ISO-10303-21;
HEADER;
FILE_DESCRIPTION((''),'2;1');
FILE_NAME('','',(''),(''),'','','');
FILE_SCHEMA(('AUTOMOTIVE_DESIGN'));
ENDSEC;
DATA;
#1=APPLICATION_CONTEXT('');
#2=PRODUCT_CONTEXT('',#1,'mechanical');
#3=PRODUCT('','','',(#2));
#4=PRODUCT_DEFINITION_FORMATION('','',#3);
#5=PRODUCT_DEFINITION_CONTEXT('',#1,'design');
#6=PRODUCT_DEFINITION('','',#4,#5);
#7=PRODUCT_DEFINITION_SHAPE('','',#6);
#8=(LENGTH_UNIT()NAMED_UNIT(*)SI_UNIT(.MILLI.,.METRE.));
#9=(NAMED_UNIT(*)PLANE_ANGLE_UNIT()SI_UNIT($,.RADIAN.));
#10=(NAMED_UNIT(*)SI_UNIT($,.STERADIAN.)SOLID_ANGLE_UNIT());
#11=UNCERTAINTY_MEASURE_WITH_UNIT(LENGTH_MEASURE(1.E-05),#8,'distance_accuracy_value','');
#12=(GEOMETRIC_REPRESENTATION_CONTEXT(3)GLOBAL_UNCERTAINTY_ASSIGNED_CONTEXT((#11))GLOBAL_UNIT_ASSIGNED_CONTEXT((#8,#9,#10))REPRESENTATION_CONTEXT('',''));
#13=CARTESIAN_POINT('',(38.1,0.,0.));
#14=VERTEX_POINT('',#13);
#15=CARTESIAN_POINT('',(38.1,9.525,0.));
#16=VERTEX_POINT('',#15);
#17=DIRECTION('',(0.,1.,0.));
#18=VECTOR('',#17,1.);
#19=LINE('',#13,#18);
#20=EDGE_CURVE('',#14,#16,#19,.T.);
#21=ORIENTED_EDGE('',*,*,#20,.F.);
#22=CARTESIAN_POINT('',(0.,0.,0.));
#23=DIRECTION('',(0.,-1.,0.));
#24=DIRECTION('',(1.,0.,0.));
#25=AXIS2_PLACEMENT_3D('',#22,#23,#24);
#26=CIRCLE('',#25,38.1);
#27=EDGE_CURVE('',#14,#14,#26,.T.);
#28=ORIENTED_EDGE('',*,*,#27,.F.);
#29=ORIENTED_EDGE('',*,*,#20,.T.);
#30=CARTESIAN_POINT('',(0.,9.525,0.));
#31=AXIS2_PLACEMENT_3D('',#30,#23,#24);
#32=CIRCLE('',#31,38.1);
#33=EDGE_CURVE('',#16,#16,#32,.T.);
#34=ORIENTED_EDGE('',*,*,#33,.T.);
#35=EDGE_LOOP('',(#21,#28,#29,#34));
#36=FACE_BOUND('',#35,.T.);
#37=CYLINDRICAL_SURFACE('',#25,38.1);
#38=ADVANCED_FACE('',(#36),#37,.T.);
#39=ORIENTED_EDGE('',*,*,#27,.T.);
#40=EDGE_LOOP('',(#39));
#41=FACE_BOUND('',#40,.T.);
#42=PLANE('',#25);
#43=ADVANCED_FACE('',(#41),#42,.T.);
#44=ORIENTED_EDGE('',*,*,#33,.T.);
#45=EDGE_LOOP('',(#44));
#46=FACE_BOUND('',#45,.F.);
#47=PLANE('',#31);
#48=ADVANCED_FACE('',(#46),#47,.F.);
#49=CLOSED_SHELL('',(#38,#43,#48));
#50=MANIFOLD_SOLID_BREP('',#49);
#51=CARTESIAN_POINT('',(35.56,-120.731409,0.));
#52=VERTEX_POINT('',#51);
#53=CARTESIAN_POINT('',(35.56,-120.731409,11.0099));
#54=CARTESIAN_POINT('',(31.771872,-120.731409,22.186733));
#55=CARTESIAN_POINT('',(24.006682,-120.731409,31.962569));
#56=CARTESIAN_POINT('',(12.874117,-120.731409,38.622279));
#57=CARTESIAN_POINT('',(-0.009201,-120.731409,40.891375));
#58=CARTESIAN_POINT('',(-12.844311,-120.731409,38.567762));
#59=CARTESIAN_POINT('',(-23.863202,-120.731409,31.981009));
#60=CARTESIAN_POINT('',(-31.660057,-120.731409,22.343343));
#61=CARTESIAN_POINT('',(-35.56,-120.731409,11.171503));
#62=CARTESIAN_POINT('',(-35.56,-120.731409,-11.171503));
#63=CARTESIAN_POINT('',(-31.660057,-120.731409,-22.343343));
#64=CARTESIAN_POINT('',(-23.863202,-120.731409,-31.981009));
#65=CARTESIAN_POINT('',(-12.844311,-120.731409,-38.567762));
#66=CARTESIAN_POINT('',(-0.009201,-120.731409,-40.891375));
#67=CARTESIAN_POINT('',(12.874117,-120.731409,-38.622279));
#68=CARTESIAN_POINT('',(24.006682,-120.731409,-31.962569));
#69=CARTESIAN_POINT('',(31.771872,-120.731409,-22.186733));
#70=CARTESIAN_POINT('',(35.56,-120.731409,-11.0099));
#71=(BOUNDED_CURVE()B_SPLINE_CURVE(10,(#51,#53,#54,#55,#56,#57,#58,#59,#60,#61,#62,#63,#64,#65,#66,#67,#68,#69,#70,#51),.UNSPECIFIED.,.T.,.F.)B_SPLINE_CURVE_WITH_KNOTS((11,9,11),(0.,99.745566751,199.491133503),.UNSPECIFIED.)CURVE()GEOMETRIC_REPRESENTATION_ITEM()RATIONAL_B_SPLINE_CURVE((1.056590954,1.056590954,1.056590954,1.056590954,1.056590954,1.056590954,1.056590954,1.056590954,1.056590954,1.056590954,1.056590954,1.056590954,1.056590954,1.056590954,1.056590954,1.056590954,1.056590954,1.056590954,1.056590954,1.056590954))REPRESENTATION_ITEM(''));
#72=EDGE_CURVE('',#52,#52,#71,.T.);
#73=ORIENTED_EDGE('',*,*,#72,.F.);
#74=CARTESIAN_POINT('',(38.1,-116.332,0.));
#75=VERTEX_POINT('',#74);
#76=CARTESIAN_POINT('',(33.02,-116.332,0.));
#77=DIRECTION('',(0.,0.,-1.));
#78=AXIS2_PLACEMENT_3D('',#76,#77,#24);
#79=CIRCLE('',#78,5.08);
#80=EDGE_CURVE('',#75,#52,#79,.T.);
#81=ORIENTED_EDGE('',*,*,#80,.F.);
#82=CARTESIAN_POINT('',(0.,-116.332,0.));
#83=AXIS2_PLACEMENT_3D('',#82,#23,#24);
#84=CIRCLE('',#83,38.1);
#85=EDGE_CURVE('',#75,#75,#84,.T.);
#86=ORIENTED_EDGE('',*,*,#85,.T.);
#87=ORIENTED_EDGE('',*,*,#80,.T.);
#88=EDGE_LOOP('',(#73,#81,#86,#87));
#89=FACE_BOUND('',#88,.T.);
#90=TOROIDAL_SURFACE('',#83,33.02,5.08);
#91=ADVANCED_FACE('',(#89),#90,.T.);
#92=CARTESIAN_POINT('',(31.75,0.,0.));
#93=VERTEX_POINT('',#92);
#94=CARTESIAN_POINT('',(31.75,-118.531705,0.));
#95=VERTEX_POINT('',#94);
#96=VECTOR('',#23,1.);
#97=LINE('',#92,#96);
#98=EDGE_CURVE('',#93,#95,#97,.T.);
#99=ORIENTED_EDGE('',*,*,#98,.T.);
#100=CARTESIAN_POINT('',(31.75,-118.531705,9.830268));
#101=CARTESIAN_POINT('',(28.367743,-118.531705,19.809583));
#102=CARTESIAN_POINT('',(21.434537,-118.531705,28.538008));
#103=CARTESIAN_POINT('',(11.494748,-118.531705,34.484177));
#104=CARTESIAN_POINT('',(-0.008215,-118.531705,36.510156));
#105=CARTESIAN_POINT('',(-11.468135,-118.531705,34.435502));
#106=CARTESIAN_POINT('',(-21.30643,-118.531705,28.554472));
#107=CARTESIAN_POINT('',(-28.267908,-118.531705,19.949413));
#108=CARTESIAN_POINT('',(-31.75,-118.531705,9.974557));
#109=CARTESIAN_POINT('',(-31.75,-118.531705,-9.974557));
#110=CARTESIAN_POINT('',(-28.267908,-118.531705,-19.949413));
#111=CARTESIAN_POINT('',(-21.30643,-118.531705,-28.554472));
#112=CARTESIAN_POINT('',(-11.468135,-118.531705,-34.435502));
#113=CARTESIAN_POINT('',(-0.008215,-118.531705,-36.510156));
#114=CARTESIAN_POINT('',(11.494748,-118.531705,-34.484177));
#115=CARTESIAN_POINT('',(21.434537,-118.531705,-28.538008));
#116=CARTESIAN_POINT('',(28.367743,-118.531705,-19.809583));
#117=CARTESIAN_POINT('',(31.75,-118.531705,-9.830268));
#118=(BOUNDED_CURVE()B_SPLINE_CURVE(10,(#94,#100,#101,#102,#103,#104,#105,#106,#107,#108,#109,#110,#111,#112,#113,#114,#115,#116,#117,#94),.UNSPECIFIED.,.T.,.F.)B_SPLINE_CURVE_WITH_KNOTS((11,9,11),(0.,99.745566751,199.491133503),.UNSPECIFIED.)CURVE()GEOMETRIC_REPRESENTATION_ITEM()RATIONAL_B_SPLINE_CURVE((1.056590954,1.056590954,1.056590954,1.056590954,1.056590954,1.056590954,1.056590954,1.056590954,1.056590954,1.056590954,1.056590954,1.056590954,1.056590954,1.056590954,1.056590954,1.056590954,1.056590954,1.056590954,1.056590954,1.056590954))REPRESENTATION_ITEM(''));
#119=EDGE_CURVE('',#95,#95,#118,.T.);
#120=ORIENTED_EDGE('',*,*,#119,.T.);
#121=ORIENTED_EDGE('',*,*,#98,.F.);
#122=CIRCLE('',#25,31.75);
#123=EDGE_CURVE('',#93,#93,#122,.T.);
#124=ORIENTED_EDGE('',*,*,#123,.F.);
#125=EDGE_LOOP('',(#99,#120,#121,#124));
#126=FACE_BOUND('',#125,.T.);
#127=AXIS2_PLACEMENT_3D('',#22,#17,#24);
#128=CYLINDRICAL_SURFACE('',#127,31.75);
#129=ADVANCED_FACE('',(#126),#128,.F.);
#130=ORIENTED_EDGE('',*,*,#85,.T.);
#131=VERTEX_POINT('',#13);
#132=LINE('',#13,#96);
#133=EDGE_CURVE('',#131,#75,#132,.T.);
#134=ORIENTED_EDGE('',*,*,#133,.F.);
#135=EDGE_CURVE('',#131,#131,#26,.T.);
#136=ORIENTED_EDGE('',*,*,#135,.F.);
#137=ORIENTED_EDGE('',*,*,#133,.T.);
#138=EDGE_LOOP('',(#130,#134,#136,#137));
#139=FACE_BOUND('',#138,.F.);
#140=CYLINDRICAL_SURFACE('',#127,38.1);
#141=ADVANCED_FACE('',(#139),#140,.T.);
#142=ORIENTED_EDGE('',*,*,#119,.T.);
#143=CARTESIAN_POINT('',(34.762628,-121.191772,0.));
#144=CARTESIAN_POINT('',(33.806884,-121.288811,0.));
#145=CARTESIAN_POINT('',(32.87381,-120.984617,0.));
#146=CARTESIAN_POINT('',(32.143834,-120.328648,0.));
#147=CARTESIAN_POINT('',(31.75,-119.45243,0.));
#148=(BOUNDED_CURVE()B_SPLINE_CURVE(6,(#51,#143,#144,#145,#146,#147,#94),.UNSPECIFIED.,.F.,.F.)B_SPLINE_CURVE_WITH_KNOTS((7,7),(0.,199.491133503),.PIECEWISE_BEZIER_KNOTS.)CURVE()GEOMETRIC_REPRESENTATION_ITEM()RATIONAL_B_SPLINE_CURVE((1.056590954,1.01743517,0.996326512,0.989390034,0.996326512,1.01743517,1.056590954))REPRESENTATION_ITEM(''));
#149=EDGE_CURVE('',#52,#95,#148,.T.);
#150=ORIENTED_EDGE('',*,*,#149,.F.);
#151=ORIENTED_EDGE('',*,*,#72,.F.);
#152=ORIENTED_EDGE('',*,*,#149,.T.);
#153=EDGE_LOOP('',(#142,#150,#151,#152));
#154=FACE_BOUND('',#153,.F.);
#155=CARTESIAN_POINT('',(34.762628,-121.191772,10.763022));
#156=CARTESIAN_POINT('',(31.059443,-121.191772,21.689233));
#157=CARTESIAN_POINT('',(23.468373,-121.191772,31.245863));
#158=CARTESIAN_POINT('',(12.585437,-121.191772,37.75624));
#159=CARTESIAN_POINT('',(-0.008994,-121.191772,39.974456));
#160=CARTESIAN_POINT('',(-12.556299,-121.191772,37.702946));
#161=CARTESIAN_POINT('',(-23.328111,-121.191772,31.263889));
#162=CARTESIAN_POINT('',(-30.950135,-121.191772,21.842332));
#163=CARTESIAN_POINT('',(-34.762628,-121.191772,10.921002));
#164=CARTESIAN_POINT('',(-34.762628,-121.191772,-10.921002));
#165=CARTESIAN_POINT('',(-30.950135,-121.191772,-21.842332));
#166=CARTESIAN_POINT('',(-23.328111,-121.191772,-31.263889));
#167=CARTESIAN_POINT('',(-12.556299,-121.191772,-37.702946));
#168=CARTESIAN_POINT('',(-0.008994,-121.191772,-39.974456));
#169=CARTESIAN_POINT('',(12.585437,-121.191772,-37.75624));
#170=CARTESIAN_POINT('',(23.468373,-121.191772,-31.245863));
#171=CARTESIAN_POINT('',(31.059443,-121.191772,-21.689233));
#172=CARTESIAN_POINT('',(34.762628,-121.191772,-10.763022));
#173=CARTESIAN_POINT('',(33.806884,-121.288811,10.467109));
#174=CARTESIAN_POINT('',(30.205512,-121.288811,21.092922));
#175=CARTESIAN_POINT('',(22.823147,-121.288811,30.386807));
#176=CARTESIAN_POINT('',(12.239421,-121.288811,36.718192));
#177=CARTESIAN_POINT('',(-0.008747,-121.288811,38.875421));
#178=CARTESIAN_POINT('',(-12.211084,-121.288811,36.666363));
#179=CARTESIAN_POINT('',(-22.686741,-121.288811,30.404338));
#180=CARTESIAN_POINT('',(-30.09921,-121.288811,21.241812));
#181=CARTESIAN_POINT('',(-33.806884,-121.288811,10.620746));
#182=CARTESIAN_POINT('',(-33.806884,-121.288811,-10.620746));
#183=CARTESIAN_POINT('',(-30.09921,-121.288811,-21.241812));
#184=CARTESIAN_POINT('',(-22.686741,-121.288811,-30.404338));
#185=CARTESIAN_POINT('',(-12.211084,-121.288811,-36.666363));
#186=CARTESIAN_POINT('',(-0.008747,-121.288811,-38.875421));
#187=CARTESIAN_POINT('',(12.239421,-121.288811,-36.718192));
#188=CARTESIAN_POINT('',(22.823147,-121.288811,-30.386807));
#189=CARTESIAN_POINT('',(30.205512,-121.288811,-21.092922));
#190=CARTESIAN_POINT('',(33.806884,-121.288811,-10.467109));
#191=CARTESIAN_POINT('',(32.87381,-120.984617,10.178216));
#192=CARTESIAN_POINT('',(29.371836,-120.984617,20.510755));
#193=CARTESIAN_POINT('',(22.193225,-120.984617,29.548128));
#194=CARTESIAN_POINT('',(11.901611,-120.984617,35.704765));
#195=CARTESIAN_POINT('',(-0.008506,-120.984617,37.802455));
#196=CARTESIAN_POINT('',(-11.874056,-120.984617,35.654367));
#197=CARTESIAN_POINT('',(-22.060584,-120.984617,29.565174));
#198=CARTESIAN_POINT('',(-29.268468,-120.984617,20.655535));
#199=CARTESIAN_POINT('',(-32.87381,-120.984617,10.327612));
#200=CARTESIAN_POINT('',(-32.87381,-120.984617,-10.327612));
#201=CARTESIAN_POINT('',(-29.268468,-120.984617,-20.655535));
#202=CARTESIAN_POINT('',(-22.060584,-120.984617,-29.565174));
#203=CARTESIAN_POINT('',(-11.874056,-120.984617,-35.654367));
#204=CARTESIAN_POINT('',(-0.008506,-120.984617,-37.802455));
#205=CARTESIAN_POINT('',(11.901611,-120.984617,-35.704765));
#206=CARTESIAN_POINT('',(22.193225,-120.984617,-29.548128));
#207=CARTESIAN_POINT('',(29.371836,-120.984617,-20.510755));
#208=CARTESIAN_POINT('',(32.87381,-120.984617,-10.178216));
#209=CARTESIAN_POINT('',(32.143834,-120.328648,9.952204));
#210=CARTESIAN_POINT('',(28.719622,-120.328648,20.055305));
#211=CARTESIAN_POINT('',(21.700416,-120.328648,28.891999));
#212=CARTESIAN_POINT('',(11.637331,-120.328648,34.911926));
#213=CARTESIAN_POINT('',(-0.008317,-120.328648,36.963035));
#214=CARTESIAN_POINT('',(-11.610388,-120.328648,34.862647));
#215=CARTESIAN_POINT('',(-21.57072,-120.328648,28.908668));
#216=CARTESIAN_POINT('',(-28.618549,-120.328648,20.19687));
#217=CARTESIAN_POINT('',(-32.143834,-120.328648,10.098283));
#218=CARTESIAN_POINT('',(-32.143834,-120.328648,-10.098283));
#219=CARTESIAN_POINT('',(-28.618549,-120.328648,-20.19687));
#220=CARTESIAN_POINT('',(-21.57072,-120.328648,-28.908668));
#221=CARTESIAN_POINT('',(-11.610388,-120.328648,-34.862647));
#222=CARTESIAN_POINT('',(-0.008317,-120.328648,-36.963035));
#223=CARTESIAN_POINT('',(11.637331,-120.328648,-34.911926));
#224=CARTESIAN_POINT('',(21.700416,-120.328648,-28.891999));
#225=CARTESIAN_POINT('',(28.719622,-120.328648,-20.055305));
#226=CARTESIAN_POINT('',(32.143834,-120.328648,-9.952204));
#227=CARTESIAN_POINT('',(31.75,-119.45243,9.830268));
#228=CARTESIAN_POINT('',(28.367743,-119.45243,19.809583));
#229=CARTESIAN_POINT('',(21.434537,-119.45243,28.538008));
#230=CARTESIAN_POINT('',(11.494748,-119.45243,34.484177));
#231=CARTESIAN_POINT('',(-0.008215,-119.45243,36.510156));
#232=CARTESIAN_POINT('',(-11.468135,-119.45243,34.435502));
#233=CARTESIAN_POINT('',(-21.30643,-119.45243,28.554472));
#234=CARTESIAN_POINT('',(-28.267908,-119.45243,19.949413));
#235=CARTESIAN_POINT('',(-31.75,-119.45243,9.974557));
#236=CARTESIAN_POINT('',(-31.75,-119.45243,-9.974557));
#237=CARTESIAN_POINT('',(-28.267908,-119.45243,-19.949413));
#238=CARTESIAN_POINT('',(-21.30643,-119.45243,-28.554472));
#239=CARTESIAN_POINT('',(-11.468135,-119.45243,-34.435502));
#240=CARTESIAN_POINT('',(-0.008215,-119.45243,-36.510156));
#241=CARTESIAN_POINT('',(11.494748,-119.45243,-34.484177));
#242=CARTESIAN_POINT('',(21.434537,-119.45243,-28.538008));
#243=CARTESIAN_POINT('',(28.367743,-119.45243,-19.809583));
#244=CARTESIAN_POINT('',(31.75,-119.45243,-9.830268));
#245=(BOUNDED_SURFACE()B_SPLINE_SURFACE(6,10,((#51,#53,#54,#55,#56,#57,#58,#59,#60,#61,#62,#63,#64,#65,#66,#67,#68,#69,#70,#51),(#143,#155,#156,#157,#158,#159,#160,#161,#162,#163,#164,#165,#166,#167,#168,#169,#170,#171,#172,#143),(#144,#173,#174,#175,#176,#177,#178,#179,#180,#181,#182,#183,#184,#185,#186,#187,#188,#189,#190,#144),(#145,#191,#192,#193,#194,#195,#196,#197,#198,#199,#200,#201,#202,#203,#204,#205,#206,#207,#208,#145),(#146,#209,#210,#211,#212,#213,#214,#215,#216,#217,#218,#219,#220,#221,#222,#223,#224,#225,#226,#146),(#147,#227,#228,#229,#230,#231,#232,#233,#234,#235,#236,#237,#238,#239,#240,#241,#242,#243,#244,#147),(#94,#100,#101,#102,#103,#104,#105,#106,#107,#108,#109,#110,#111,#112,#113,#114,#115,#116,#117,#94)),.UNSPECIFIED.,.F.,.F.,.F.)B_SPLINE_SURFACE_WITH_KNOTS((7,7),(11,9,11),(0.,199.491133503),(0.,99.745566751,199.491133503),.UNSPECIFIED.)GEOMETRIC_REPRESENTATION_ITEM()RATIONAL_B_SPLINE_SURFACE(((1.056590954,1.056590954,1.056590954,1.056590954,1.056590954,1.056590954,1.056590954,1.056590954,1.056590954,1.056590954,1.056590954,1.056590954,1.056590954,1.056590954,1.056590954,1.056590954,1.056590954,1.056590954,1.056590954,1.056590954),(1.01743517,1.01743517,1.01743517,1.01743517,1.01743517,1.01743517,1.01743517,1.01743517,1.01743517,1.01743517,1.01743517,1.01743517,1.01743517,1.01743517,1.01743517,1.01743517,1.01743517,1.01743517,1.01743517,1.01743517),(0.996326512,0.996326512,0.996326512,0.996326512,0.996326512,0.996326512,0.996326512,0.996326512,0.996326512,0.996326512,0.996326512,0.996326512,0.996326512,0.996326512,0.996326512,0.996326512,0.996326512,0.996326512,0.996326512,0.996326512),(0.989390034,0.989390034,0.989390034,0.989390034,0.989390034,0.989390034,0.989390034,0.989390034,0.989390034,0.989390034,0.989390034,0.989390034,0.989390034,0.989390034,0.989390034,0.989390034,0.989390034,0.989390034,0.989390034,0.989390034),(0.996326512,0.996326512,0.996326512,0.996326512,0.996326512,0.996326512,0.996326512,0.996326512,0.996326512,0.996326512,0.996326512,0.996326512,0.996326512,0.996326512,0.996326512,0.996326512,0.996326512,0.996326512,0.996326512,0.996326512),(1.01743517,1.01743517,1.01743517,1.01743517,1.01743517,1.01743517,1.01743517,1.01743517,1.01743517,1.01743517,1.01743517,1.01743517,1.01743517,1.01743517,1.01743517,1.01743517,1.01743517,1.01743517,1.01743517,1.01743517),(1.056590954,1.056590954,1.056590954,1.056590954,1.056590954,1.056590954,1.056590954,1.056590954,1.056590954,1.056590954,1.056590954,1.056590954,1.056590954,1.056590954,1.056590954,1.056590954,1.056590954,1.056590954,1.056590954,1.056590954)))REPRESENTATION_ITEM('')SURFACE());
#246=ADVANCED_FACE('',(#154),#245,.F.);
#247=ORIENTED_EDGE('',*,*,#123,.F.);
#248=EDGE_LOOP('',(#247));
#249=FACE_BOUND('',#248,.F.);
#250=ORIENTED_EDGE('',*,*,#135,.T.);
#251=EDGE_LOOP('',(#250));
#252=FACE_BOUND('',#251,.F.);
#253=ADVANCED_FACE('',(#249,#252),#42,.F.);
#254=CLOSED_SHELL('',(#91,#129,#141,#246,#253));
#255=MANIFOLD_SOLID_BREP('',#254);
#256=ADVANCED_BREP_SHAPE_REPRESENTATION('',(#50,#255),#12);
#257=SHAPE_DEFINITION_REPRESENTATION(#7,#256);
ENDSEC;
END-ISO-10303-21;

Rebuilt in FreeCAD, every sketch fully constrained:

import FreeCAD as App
import Part
import Sketcher
from FreeCAD import Vector
Q = App.Units.Quantity


def edges_at(feature, points):
    """Names of the edges that pass closest to the given points."""
    edges = feature.Shape.Edges
    near = lambda p: min(range(len(edges)), key=lambda i: edges[i].distToShape(Part.Vertex(*p))[0])
    return sorted({f"Edge{near(p) + 1}" for p in points})

doc = App.newDocument("Part")
body = doc.addObject("PartDesign::Body", "Body")

sketch1 = body.newObject("Sketcher::SketchObject", "Sketch")
sketch1.AttachmentSupport = (doc.getObject("XZ_Plane"), [""])
sketch1.MapMode = "FlatFace"
sketch1.addGeometry(Part.Circle(Vector(0, 0, 0), Vector(0, 0, 1), 38), False)
sketch1.addGeometry(Part.Circle(Vector(0, 0, 0), Vector(0, 0, 1), 32), False)
sketch1.addConstraint(Sketcher.Constraint("Coincident", 0, 3, -1, 1))
sketch1.addConstraint(Sketcher.Constraint("Coincident", 1, 3, -1, 1))
sketch1.addConstraint(Sketcher.Constraint("Diameter", 0, Q("3 in")))
sketch1.addConstraint(Sketcher.Constraint("Diameter", 1, Q("2.5 in")))
pad1 = body.newObject("PartDesign::Pad", "Pad")
pad1.Profile = sketch1
pad1.Length = Q("4.78 in")
doc.recompute()

fillet = body.newObject("PartDesign::Fillet", "Fillet")
fillet.Base = (pad1, edges_at(pad1, [(-38.1, -121.412, 0)]))
fillet.Radius = Q("0.2 in")
doc.recompute()

fillet2 = body.newObject("PartDesign::Fillet", "Fillet001")
fillet2.Base = (fillet, edges_at(fillet, [(-31.75, -121.412, 0)]))
fillet2.Radius = Q("0.1 in")
body2 = doc.addObject("PartDesign::Body", "Body001")

sketch2 = body2.newObject("Sketcher::SketchObject", "Sketch001")
sketch2.AttachmentSupport = (doc.getObject("XZ_Plane001"), [""])
sketch2.MapMode = "FlatFace"
sketch2.addGeometry(Part.Circle(Vector(0, 0, 0), Vector(0, 0, 1), 38), False)
sketch2.addConstraint(Sketcher.Constraint("Coincident", 0, 3, -1, 1))
sketch2.addConstraint(Sketcher.Constraint("Diameter", 0, Q("3 in")))
pad2 = body2.newObject("PartDesign::Pad", "Pad001")
pad2.Profile = sketch2
pad2.Length = Q("0.375 in")
pad2.Reversed = True

doc.recompute()
